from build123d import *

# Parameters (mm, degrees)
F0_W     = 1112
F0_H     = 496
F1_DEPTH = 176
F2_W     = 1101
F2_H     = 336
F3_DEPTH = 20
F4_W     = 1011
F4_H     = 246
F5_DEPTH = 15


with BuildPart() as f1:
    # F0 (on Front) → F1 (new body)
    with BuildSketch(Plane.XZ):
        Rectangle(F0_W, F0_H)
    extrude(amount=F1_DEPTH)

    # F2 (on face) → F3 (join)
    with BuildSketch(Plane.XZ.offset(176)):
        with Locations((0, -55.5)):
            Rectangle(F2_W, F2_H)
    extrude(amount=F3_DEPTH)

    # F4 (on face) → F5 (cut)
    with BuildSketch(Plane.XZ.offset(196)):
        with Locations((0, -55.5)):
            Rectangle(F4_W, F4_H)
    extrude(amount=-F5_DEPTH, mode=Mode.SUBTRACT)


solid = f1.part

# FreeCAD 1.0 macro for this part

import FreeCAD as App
import Part
import Sketcher
from FreeCAD import Vector
Q = App.Units.Quantity

doc = App.newDocument("Part")
params = doc.addObject("Spreadsheet::Sheet", "Params")
for row, (alias, value) in enumerate([
    ("sketch1_width", "1112 mm"),
    ("sketch1_height", "496 mm"),
    ("pad1_length", "176 mm"),
    ("sketch2_width", "1101 mm"),
    ("sketch2_height", "336 mm"),
    ("pad2_length", "20 mm"),
    ("sketch3_width", "1011 mm"),
    ("sketch3_height", "246 mm"),
    ("pocket1_length", "15 mm"),
], start=1):
    params.set(f"A{row}", alias)
    params.set(f"B{row}", "=" + value)
    params.setAlias(f"B{row}", alias)

body = doc.addObject("PartDesign::Body", "Body")

# Sketch on XZ plane
sketch1 = doc.addObject("Sketcher::SketchObject", "Sketch")
body.addObject(sketch1)
sketch1.AttachmentSupport = (doc.XZ_Plane, [""])
sketch1.MapMode = "FlatFace"
sketch1.addGeometry([
    Part.LineSegment(Vector(-556, 248, 0), Vector(-556, -248, 0)),
    Part.LineSegment(Vector(-556, -248, 0), Vector(556, -248, 0)),
    Part.LineSegment(Vector(556, -248, 0), Vector(556, 248, 0)),
    Part.LineSegment(Vector(556, 248, 0), Vector(-556, 248, 0)),
], False)
sketch1.addConstraint([
    Sketcher.Constraint("Coincident", 0, 2, 1, 1),
    Sketcher.Constraint("Coincident", 1, 2, 2, 1),
    Sketcher.Constraint("Coincident", 2, 2, 3, 1),
    Sketcher.Constraint("Coincident", 3, 2, 0, 1),
    Sketcher.Constraint("Vertical", 0),
    Sketcher.Constraint("Horizontal", 1),
    Sketcher.Constraint("Vertical", 2),
    Sketcher.Constraint("Horizontal", 3),
    Sketcher.Constraint("Symmetric", 0, 2, 2, 2, -1, 1),
    Sketcher.Constraint("DistanceX", 1, 1, 1, 2, Q("1112 mm")),
    Sketcher.Constraint("DistanceY", 0, 2, 0, 1, Q("496 mm")),
])
sketch1.setExpression("Constraints[9]", "Params.sketch1_width")
sketch1.setExpression("Constraints[10]", "Params.sketch1_height")
pad1 = doc.addObject("PartDesign::Pad", "Pad")
body.addObject(pad1)
pad1.Profile = sketch1
pad1.setExpression("Length", "Params.pad1_length")

# Sketch on XZ plane
sketch2 = doc.addObject("Sketcher::SketchObject", "Sketch001")
body.addObject(sketch2)
sketch2.AttachmentSupport = (doc.XZ_Plane, [""])
sketch2.MapMode = "FlatFace"
sketch2.AttachmentOffset = App.Placement(Vector(0, 0, 176), App.Rotation())
sketch2.addGeometry([
    Part.LineSegment(Vector(-550.5, 112.5, 0), Vector(-550.5, -223.5, 0)),
    Part.LineSegment(Vector(-550.5, -223.5, 0), Vector(550.5, -223.5, 0)),
    Part.LineSegment(Vector(550.5, -223.5, 0), Vector(550.5, 112.5, 0)),
    Part.LineSegment(Vector(550.5, 112.5, 0), Vector(-550.5, 112.5, 0)),
], False)
sketch2.addConstraint([
    Sketcher.Constraint("Coincident", 0, 2, 1, 1),
    Sketcher.Constraint("Coincident", 1, 2, 2, 1),
    Sketcher.Constraint("Coincident", 2, 2, 3, 1),
    Sketcher.Constraint("Coincident", 3, 2, 0, 1),
    Sketcher.Constraint("Vertical", 0),
    Sketcher.Constraint("Horizontal", 1),
    Sketcher.Constraint("Vertical", 2),
    Sketcher.Constraint("Horizontal", 3),
    Sketcher.Constraint("DistanceX", 1, 1, 1, 2, Q("1101 mm")),
    Sketcher.Constraint("DistanceY", 0, 2, 0, 1, Q("336 mm")),
    Sketcher.Constraint("DistanceX", 0, 2, -1, 1, Q("550.5 mm")),
    Sketcher.Constraint("DistanceY", 0, 2, -1, 1, Q("223.5 mm")),
])
sketch2.setExpression("Constraints[8]", "Params.sketch2_width")
sketch2.setExpression("Constraints[9]", "Params.sketch2_height")
pad2 = doc.addObject("PartDesign::Pad", "Pad001")
body.addObject(pad2)
pad2.Profile = sketch2
pad2.setExpression("Length", "Params.pad2_length")

# Sketch on XZ plane
sketch3 = doc.addObject("Sketcher::SketchObject", "Sketch002")
body.addObject(sketch3)
sketch3.AttachmentSupport = (doc.XZ_Plane, [""])
sketch3.MapMode = "FlatFace"
sketch3.AttachmentOffset = App.Placement(Vector(0, 0, 196), App.Rotation())
sketch3.addGeometry([
    Part.LineSegment(Vector(-505.5, 67.5, 0), Vector(-505.5, -178.5, 0)),
    Part.LineSegment(Vector(-505.5, -178.5, 0), Vector(505.5, -178.5, 0)),
    Part.LineSegment(Vector(505.5, -178.5, 0), Vector(505.5, 67.5, 0)),
    Part.LineSegment(Vector(505.5, 67.5, 0), Vector(-505.5, 67.5, 0)),
], False)
sketch3.addConstraint([
    Sketcher.Constraint("Coincident", 0, 2, 1, 1),
    Sketcher.Constraint("Coincident", 1, 2, 2, 1),
    Sketcher.Constraint("Coincident", 2, 2, 3, 1),
    Sketcher.Constraint("Coincident", 3, 2, 0, 1),
    Sketcher.Constraint("Vertical", 0),
    Sketcher.Constraint("Horizontal", 1),
    Sketcher.Constraint("Vertical", 2),
    Sketcher.Constraint("Horizontal", 3),
    Sketcher.Constraint("DistanceX", 1, 1, 1, 2, Q("1011 mm")),
    Sketcher.Constraint("DistanceY", 0, 2, 0, 1, Q("246 mm")),
    Sketcher.Constraint("DistanceX", 0, 2, -1, 1, Q("505.5 mm")),
    Sketcher.Constraint("DistanceY", 0, 2, -1, 1, Q("178.5 mm")),
])
sketch3.setExpression("Constraints[8]", "Params.sketch3_width")
sketch3.setExpression("Constraints[9]", "Params.sketch3_height")
pocket1 = doc.addObject("PartDesign::Pocket", "Pocket")
body.addObject(pocket1)
pocket1.Profile = sketch3
pocket1.setExpression("Length", "Params.pocket1_length")

doc.recompute()
